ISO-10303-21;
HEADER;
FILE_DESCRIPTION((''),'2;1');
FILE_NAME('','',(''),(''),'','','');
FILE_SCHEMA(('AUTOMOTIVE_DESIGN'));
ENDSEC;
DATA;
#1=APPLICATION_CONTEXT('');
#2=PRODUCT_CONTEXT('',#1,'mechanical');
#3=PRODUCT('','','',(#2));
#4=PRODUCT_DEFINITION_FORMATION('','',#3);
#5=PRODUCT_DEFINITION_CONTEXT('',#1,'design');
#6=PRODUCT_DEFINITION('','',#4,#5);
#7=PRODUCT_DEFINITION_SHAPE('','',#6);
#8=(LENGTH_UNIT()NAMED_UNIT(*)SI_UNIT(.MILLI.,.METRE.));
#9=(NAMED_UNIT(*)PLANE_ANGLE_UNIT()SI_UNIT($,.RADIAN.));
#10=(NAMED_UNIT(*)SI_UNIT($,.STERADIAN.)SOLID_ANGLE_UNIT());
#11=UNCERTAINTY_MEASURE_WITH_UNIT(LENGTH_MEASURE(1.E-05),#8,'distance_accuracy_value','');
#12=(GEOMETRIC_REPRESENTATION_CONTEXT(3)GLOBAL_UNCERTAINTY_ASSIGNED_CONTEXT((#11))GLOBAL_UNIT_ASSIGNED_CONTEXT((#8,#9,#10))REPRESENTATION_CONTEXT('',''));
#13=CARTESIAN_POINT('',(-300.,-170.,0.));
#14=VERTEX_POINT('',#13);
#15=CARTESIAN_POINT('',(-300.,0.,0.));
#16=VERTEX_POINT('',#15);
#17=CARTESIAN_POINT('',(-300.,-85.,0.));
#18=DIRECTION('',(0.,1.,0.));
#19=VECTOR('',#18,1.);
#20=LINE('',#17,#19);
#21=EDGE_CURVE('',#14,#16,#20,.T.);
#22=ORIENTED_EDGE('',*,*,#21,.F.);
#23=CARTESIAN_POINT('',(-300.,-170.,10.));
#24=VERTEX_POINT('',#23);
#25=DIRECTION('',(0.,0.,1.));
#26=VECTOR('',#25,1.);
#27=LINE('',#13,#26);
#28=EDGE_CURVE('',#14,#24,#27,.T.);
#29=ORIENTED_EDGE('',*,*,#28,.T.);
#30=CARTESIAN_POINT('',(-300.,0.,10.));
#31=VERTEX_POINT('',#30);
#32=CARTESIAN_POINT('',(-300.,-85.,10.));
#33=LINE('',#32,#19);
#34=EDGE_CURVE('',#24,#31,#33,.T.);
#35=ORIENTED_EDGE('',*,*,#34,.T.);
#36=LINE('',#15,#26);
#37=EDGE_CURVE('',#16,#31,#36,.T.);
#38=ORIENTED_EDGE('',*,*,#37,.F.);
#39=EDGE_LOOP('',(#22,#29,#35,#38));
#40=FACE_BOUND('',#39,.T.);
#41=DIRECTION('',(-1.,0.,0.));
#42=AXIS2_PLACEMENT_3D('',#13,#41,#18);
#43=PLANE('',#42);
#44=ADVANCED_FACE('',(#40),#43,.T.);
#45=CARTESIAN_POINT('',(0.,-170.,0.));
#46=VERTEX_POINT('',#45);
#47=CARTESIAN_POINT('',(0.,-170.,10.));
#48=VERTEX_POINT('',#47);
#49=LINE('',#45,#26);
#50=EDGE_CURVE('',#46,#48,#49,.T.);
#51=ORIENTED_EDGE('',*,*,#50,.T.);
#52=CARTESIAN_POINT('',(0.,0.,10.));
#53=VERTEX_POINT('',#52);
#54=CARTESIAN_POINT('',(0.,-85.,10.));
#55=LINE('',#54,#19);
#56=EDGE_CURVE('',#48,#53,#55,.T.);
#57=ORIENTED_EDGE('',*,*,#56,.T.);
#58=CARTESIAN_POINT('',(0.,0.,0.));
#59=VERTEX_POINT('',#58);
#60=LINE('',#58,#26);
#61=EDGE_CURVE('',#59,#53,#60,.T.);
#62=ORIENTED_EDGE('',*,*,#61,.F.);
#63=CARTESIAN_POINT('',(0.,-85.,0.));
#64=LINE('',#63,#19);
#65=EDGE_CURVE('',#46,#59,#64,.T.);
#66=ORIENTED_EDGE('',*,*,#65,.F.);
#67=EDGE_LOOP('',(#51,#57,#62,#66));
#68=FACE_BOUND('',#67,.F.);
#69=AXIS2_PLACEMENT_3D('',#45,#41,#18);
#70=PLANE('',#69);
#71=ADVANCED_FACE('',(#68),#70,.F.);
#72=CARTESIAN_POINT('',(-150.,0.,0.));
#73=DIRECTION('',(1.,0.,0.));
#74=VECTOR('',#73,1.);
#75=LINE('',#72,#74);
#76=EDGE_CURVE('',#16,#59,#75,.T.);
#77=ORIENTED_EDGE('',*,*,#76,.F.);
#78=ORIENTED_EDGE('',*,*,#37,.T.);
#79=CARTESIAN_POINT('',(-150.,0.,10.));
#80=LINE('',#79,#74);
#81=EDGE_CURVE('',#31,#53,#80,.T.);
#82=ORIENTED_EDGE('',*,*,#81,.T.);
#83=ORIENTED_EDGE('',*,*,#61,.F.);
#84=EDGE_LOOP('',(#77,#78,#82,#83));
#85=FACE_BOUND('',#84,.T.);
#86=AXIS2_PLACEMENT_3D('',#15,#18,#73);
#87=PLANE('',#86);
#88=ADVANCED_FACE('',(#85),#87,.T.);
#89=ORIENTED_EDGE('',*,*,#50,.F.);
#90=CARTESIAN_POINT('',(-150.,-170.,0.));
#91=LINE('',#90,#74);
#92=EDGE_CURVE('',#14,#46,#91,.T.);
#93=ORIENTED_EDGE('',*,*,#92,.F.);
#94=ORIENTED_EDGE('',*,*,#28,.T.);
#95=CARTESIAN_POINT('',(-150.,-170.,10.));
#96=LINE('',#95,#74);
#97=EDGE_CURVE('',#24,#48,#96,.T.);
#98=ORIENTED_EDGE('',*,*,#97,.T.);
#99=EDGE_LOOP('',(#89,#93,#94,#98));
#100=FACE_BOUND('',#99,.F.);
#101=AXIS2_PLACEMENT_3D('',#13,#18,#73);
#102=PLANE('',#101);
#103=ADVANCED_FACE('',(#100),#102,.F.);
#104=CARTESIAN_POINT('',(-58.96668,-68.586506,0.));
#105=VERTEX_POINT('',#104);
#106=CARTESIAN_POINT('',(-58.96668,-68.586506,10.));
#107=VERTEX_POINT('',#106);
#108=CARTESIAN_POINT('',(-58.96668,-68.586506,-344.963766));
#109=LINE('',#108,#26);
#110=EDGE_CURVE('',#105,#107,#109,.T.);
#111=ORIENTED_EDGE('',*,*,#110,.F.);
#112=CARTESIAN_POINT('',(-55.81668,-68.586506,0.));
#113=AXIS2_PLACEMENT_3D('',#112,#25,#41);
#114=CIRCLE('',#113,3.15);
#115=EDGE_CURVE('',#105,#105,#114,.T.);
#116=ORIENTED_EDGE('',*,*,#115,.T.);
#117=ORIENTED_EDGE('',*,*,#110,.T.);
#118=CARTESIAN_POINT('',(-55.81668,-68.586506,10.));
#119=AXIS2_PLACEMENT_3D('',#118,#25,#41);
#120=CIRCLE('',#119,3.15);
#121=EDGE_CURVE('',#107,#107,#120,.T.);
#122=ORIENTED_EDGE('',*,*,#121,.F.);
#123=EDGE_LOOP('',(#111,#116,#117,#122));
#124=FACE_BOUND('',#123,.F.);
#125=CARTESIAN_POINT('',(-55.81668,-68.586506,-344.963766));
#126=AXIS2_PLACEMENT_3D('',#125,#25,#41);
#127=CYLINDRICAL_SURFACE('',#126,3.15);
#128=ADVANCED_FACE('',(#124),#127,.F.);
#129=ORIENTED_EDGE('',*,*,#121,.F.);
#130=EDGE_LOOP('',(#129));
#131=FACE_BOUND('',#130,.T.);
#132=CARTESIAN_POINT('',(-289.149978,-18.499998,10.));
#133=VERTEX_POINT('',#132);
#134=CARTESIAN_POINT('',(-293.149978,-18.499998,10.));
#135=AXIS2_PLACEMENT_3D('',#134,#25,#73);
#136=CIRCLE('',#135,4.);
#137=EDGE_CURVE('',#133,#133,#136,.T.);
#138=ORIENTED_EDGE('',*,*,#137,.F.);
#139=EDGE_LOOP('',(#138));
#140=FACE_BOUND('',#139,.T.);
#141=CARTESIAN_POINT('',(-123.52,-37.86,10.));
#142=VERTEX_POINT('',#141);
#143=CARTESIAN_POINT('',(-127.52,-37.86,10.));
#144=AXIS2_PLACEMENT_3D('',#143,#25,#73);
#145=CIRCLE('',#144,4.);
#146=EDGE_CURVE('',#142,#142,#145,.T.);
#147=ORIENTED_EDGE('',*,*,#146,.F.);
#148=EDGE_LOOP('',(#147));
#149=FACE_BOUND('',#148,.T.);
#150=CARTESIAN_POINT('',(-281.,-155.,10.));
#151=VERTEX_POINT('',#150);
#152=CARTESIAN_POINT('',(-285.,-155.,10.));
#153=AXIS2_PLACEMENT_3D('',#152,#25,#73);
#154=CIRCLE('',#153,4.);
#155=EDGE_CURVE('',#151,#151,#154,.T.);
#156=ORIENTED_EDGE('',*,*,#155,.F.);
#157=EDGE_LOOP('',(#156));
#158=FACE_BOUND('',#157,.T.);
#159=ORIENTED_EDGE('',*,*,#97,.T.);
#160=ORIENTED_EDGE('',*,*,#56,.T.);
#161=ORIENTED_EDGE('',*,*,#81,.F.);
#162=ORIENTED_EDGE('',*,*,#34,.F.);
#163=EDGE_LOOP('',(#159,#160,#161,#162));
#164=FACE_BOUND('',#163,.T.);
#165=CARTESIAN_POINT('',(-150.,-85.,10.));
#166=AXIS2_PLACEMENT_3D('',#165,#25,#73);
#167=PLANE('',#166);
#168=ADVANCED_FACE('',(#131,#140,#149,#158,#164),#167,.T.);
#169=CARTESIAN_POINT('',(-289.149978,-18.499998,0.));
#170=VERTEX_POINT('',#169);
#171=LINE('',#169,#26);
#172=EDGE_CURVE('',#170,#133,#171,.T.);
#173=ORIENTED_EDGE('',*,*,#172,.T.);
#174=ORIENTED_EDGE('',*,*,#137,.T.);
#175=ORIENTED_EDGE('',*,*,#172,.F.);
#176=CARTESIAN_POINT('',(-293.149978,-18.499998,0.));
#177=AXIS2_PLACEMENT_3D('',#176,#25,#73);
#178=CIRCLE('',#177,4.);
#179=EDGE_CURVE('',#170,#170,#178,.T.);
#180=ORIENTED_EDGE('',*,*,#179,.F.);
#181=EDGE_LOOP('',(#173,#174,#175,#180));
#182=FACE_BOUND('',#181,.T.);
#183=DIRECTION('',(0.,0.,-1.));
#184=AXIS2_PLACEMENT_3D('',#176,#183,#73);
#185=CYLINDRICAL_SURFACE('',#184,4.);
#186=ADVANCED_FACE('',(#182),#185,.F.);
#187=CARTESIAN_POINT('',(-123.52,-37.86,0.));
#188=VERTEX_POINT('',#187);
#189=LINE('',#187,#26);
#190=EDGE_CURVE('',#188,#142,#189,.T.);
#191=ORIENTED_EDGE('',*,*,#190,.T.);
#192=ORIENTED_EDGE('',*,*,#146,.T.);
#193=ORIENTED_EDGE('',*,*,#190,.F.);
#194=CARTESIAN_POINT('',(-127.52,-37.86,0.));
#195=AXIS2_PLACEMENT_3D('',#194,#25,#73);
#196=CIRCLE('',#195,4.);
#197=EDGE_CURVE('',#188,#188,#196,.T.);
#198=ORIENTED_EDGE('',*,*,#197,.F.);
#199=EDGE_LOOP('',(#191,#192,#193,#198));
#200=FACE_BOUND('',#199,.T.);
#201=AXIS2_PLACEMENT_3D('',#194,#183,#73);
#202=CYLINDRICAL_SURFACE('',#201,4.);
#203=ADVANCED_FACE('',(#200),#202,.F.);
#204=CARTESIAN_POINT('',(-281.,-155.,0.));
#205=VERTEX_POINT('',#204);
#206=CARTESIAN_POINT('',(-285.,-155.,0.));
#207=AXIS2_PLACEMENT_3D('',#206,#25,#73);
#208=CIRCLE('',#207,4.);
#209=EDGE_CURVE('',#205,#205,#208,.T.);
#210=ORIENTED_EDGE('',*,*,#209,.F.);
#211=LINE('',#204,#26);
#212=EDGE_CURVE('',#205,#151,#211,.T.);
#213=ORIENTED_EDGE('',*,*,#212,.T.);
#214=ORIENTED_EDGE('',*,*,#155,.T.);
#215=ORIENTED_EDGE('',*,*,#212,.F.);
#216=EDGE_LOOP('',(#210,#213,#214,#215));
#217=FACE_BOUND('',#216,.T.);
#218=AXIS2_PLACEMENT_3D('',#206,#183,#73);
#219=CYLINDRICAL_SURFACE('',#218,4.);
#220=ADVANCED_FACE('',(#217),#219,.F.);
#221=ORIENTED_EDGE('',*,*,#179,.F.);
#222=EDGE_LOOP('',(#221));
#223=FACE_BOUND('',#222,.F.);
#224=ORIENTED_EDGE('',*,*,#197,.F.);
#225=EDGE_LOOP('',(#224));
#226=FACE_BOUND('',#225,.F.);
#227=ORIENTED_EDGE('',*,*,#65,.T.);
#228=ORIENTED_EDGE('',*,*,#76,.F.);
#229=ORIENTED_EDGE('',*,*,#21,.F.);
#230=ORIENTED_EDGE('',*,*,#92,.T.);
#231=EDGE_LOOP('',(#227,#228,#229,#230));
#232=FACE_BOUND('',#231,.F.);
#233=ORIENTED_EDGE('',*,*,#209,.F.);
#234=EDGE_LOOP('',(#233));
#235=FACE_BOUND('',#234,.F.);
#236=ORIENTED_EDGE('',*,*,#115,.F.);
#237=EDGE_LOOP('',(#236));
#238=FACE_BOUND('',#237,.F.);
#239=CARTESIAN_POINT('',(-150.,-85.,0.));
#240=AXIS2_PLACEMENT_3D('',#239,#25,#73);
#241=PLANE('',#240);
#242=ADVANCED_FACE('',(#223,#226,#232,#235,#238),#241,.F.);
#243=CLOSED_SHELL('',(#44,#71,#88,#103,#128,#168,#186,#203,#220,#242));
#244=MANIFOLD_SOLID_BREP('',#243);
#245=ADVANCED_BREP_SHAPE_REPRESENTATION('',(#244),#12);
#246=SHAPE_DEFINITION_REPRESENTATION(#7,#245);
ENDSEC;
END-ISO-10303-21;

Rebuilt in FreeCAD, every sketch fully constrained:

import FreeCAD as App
import Part
import Sketcher

doc = App.newDocument("Part")
body = doc.addObject("PartDesign::Body", "Body")

# Sketch on XY plane
sketch1 = body.newObject("Sketcher::SketchObject", "Sketch")
sketch1.AttachmentSupport = (doc.getObject("XY_Plane"), [""])
sketch1.MapMode = "FlatFace"
sketch1.addGeometry([
    Part.LineSegment(App.Vector(-300, 0, 0), App.Vector(-300, -170, 0)),  # 0
    Part.LineSegment(App.Vector(-300, -170, 0), App.Vector(0, -170, 0)),  # 1
    Part.LineSegment(App.Vector(0, -170, 0), App.Vector(0, 0, 0)),  # 2
    Part.LineSegment(App.Vector(0, 0, 0), App.Vector(-300, 0, 0)),  # 3
    Part.Circle(App.Vector(-285, -155, 0), App.Vector(0, 0, 1), 4),  # 4
    Part.Circle(App.Vector(-293.1, -18.5, 0), App.Vector(0, 0, 1), 4),  # 5
    Part.Circle(App.Vector(-127.5, -37.9, 0), App.Vector(0, 0, 1), 4),  # 6
], False)
sketch1.addConstraint([
    Sketcher.Constraint("Coincident", 0, 2, 1, 1),
    Sketcher.Constraint("Coincident", 1, 2, 2, 1),
    Sketcher.Constraint("Coincident", 2, 2, 3, 1),
    Sketcher.Constraint("Coincident", 3, 2, 0, 1),
    Sketcher.Constraint("Vertical", 0),
    Sketcher.Constraint("Horizontal", 1),
    Sketcher.Constraint("Vertical", 2),
    Sketcher.Constraint("Horizontal", 3),
    Sketcher.Constraint("Coincident", 2, 2, -1, 1),
    Sketcher.Constraint("Equal", 4, 5),
    Sketcher.Constraint("Equal", 5, 6),
    Sketcher.Constraint("Diameter", 4, 8.0),
    Sketcher.Constraint("DistanceX", 1, 1, 1, 2, 300.0),
    Sketcher.Constraint("DistanceY", 0, 2, 0, 1, 170.0),
    Sketcher.Constraint("DistanceX", 4, 3, -1, 1, 285.0),
    Sketcher.Constraint("DistanceY", 4, 3, -1, 1, 155.0),
    Sketcher.Constraint("DistanceY", 5, 3, -1, 1, 18.499998),
    Sketcher.Constraint("DistanceX", 6, 3, -1, 1, 127.52),
    Sketcher.Constraint("DistanceY", 6, 3, -1, 1, 37.86),
    Sketcher.Constraint("DistanceX", 5, 3, -1, 1, 293.149978),
])
pad1 = body.newObject("PartDesign::Pad", "Pad")
pad1.Profile = sketch1
pad1.Length = 10

# Sketch on XY plane
sketch2 = body.newObject("Sketcher::SketchObject", "Sketch001")
sketch2.AttachmentSupport = (doc.getObject("XY_Plane"), [""])
sketch2.MapMode = "FlatFace"
sketch2.addGeometry(Part.Circle(App.Vector(-55.8, -68.6, 0), App.Vector(0, 0, 1), 3.1), False)
sketch2.addConstraint([
    Sketcher.Constraint("Diameter", 0, 6.3),
    Sketcher.Constraint("DistanceX", 0, 3, -1, 1, 55.81668),
    Sketcher.Constraint("DistanceY", 0, 3, -1, 1, 68.586506),
])
doc.recompute()
hole = body.newObject("PartDesign::Hole", "Hole")
hole.Profile = sketch2
hole.ThreadType = "None"
hole.Diameter = 6.3
hole.DepthType = "ThroughAll"
hole.Reversed = True

doc.recompute()
